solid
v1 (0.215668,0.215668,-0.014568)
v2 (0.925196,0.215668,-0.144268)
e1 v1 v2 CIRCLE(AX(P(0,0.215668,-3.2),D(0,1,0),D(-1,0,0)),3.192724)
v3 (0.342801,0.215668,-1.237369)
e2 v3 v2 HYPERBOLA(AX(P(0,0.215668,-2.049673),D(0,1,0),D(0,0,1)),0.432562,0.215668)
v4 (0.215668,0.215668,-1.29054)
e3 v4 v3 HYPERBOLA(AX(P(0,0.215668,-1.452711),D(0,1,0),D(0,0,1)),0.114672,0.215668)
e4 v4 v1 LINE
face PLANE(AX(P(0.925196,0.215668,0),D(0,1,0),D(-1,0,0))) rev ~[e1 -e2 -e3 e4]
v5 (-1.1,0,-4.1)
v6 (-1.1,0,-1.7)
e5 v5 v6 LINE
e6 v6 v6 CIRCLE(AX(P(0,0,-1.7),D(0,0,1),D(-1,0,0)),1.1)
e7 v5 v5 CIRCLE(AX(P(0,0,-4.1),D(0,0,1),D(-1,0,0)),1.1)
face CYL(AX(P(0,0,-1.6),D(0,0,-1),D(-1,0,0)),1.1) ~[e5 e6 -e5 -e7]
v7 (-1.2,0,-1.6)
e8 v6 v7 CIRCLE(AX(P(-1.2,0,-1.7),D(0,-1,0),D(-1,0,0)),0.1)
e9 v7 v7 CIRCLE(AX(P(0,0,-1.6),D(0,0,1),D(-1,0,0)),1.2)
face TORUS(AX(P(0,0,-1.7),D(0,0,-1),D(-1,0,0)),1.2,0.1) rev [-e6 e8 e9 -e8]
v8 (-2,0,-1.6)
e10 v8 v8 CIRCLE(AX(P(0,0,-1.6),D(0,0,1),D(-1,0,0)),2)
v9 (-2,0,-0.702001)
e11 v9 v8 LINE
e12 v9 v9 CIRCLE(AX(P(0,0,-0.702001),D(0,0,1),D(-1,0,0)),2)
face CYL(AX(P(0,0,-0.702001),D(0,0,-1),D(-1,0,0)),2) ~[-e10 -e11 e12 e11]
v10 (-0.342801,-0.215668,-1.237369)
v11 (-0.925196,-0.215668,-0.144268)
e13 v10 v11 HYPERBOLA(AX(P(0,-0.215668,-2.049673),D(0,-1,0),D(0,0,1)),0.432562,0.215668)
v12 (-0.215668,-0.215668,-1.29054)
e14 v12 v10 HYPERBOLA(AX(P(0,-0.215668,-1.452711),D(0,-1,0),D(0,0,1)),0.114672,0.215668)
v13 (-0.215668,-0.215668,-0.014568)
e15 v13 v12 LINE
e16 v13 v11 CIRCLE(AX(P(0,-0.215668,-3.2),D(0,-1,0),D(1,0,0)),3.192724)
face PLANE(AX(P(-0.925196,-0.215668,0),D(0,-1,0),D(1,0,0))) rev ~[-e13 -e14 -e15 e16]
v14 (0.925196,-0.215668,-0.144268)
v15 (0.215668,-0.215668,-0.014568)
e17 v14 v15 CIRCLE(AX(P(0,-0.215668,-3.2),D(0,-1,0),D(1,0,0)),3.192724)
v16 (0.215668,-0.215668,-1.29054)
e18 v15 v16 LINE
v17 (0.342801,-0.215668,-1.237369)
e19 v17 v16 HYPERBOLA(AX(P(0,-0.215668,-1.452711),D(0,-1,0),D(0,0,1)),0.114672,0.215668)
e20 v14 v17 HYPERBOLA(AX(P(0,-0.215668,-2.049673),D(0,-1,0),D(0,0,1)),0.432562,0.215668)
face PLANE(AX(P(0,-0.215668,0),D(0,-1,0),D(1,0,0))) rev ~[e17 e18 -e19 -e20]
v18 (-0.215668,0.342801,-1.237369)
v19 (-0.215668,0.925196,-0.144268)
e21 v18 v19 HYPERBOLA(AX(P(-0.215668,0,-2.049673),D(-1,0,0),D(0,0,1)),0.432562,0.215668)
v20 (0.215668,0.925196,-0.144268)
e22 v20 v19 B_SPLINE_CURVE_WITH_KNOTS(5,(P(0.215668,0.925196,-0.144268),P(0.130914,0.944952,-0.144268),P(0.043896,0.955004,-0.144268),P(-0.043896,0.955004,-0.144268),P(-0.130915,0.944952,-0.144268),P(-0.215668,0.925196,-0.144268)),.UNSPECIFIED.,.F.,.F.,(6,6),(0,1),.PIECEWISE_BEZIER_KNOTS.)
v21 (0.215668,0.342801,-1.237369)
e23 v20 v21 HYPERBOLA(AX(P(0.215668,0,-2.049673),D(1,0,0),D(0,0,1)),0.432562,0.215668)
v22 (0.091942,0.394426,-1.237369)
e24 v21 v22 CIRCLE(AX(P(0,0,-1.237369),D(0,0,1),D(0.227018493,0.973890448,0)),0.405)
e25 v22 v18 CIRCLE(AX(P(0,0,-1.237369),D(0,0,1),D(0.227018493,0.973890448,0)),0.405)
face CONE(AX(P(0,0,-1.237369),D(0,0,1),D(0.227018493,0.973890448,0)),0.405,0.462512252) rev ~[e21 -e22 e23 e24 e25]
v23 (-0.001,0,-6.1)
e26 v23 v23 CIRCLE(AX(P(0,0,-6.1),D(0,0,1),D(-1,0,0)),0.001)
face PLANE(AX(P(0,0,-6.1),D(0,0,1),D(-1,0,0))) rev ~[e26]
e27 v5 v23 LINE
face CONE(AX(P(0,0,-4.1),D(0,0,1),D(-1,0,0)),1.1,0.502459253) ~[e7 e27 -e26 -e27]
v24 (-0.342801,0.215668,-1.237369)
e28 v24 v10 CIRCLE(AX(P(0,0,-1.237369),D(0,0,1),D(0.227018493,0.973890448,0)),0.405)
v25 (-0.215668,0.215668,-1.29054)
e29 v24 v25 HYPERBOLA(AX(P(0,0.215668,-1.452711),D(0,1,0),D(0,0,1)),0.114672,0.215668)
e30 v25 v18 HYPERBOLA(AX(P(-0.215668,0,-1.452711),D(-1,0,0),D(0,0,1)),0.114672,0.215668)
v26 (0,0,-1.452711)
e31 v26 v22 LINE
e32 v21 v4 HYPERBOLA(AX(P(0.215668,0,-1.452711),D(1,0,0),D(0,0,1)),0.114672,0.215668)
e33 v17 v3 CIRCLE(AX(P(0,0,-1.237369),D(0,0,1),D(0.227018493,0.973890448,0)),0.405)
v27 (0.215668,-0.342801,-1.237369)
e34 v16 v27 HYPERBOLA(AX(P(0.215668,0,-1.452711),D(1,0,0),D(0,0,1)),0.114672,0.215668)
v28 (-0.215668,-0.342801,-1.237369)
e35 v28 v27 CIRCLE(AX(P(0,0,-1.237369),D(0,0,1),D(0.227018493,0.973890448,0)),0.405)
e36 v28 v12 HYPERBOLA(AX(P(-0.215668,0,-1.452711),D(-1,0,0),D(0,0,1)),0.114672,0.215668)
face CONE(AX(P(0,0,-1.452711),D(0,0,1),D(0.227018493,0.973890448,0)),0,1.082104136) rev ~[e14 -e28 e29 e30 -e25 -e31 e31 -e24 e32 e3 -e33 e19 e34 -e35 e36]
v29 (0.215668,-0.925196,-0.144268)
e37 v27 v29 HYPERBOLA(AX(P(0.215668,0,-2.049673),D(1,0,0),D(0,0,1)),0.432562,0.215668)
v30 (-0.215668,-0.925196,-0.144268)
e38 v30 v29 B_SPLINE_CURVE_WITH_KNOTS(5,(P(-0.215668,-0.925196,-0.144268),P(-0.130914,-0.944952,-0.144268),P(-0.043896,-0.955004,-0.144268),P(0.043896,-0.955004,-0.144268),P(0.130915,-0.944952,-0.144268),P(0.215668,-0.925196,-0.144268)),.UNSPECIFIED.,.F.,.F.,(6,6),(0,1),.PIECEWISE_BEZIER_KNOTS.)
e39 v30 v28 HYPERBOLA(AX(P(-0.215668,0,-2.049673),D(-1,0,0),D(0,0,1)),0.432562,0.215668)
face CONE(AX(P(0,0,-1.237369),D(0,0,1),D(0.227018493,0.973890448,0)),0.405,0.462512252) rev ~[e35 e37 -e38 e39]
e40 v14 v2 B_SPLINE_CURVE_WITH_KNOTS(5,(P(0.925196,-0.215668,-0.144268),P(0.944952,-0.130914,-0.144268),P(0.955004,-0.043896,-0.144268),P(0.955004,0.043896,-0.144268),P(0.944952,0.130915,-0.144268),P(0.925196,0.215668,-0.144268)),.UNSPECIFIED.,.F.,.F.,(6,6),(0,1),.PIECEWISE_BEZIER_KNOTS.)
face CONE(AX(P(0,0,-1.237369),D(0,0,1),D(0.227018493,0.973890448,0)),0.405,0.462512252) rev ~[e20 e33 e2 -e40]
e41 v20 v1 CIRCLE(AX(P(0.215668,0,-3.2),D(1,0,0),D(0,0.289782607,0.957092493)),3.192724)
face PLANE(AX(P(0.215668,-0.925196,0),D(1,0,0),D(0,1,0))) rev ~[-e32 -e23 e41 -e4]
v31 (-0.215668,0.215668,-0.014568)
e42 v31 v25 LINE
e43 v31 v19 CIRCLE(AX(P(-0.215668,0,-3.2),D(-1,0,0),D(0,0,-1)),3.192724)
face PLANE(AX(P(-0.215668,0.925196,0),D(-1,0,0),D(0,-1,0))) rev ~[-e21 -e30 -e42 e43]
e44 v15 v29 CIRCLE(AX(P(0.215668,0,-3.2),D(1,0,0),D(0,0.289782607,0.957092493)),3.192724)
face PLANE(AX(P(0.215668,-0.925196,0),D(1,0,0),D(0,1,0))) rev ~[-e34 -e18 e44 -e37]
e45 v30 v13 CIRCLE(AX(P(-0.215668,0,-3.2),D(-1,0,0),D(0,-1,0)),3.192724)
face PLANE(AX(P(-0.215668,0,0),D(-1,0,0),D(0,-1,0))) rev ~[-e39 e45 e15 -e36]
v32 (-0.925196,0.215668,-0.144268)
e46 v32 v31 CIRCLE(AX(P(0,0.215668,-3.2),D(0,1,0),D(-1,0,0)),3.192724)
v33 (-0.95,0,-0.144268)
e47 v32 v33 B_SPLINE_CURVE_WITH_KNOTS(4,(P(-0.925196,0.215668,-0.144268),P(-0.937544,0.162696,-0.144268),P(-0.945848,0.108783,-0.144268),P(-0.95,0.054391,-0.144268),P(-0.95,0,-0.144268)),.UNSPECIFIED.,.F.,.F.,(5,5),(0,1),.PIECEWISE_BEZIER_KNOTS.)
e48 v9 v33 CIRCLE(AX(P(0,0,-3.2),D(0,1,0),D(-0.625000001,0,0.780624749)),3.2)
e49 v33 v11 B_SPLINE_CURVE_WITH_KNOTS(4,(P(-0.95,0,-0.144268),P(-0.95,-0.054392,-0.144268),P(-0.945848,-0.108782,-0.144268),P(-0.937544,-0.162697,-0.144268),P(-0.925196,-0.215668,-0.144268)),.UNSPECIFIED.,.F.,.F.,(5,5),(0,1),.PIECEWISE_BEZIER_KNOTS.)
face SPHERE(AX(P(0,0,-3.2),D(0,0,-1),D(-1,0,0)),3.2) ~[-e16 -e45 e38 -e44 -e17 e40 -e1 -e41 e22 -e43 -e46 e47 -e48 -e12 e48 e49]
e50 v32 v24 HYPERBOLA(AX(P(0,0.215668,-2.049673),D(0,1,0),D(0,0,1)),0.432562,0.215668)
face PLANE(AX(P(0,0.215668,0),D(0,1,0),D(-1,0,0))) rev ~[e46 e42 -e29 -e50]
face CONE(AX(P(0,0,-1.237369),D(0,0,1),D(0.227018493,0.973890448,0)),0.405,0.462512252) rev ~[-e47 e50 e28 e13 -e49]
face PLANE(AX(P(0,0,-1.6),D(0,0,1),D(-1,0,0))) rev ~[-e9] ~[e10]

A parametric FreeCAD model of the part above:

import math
import FreeCAD as App
import Part
import Sketcher
Q = App.Units.Quantity


def edges_at(feature, points):
    """Names of the edges that pass closest to the given points."""
    edges = feature.Shape.Edges
    near = lambda p: min(range(len(edges)), key=lambda i: edges[i].distToShape(Part.Vertex(*p))[0])
    return sorted({f"Edge{near(p) + 1}" for p in points})

doc = App.newDocument("Part")
body = doc.addObject("PartDesign::Body", "Body")

sketch1 = body.newObject("Sketcher::SketchObject", "Sketch")
sketch1.AttachmentSupport = (doc.getObject("YZ_Plane"), [""])
sketch1.MapMode = "FlatFace"
sketch1.addGeometry(Part.LineSegment(App.Vector(2, -1.6, 0), App.Vector(2, -0.702001, 0)), False)
sketch1.addGeometry(Part.ArcOfCircle(Part.Circle(App.Vector(0, -3.2, 0), App.Vector(0, 0, 1), 3.2), math.radians(51.317812), math.radians(90)), False)
sketch1.addGeometry(Part.LineSegment(App.Vector(0, 0, 0), App.Vector(0, -6.1, 0)), False)
sketch1.addGeometry(Part.LineSegment(App.Vector(0, -6.1, 0), App.Vector(1.1, -6.1, 0)), False)
sketch1.addGeometry(Part.LineSegment(App.Vector(1.1, -6.1, 0), App.Vector(1.1, -1.6, 0)), False)
sketch1.addGeometry(Part.LineSegment(App.Vector(1.1, -1.6, 0), App.Vector(2, -1.6, 0)), False)
sketch1.addConstraint(Sketcher.Constraint("Coincident", 0, 2, 1, 1))
sketch1.addConstraint(Sketcher.Constraint("Coincident", 1, 2, 2, 1))
sketch1.addConstraint(Sketcher.Constraint("Coincident", 2, 2, 3, 1))
sketch1.addConstraint(Sketcher.Constraint("Coincident", 3, 2, 4, 1))
sketch1.addConstraint(Sketcher.Constraint("Coincident", 4, 2, 5, 1))
sketch1.addConstraint(Sketcher.Constraint("Coincident", 5, 2, 0, 1))
sketch1.addConstraint(Sketcher.Constraint("Vertical", 0))
sketch1.addConstraint(Sketcher.Constraint("Vertical", 2))
sketch1.addConstraint(Sketcher.Constraint("Horizontal", 3))
sketch1.addConstraint(Sketcher.Constraint("Vertical", 4))
sketch1.addConstraint(Sketcher.Constraint("Horizontal", 5))
sketch1.addConstraint(Sketcher.Constraint("Coincident", 1, 2, -1, 1))
sketch1.addConstraint(Sketcher.Constraint("PointOnObject", 1, 3, -2))
sketch1.addConstraint(Sketcher.Constraint("Radius", 1, Q("3.2 mm")))
sketch1.addConstraint(Sketcher.Constraint("DistanceX", 3, 1, 3, 2, Q("1.1 mm")))
sketch1.addConstraint(Sketcher.Constraint("DistanceX", 5, 1, 5, 2, Q("0.9 mm")))
sketch1.addConstraint(Sketcher.Constraint("DistanceY", 2, 2, 2, 1, Q("6.1 mm")))
sketch1.addConstraint(Sketcher.Constraint("DistanceY", 4, 1, 4, 2, Q("4.5 mm")))
revolution = body.newObject("PartDesign::Revolution", "Revolution")
revolution.Profile = sketch1
revolution.ReferenceAxis = (sketch1, ["V_Axis"])
revolution.Angle = 360

sketch2 = body.newObject("Sketcher::SketchObject", "Sketch001")
sketch2.AttachmentSupport = (doc.getObject("XY_Plane"), [""])
sketch2.MapMode = "FlatFace"
sketch2.addGeometry(Part.LineSegment(App.Vector(-0.215668, 0.925196, 0), App.Vector(-0.215668, 0, 0)), False)
sketch2.addGeometry(Part.LineSegment(App.Vector(-0.215668, 0, 0), App.Vector(0.215668, 0, 0)), False)
sketch2.addGeometry(Part.LineSegment(App.Vector(0.215668, 0, 0), App.Vector(0.215668, 0.925196, 0)), False)
sketch2.addGeometry(Part.ArcOfCircle(Part.Circle(App.Vector(0, 0, 0), App.Vector(0, 0, 1), 0.95), math.radians(76.878399), math.radians(103.121601)), False)
sketch2.addConstraint(Sketcher.Constraint("Coincident", 0, 2, 1, 1))
sketch2.addConstraint(Sketcher.Constraint("Coincident", 1, 2, 2, 1))
sketch2.addConstraint(Sketcher.Constraint("Coincident", 2, 2, 3, 1))
sketch2.addConstraint(Sketcher.Constraint("Coincident", 3, 2, 0, 1))
sketch2.addConstraint(Sketcher.Constraint("Vertical", 0))
sketch2.addConstraint(Sketcher.Constraint("Horizontal", 1))
sketch2.addConstraint(Sketcher.Constraint("Vertical", 2))
sketch2.addConstraint(Sketcher.Constraint("Coincident", 3, 3, -1, 1))
sketch2.addConstraint(Sketcher.Constraint("Symmetric", 0, 2, 1, 2, -1, 1))
sketch2.addConstraint(Sketcher.Constraint("Radius", 3, Q("0.95 mm")))
sketch2.addConstraint(Sketcher.Constraint("DistanceX", 1, 1, 1, 2, Q("0.431335 mm")))
pocket1 = body.newObject("PartDesign::Pocket", "Pocket")
pocket1.Profile = sketch2
pocket1.Length = 1.9
doc.recompute()

polarpattern = body.newObject("PartDesign::PolarPattern", "PolarPattern")
polarpattern.Originals = [pocket1]
polarpattern.Axis = (doc.getObject("Z_Axis"), [""])
polarpattern.Angle = 360
polarpattern.Occurrences = 4
body.Tip = polarpattern

sketch3 = body.newObject("Sketcher::SketchObject", "Sketch002")
sketch3.AttachmentSupport = (doc.getObject("YZ_Plane"), [""])
sketch3.MapMode = "FlatFace"
sketch3.addGeometry(Part.LineSegment(App.Vector(1.9, -1.6, 0), App.Vector(1.9, -0.625121, 0)), False)
sketch3.addGeometry(Part.ArcOfCircle(Part.Circle(App.Vector(0, -3.2, 0), App.Vector(0, 0, 1), 3.2), math.radians(53.576426), math.radians(72.729995)), False)
sketch3.addGeometry(Part.LineSegment(App.Vector(0.95, -0.144268, 0), App.Vector(0.405, -1.237369, 0)), False)
sketch3.addGeometry(Part.LineSegment(App.Vector(0.405, -1.237369, 0), App.Vector(0, -1.452711, 0)), False)
sketch3.addGeometry(Part.LineSegment(App.Vector(0, -1.452711, 0), App.Vector(0, -1.91, 0)), False)
sketch3.addGeometry(Part.LineSegment(App.Vector(0, -1.91, 0), App.Vector(1.1, -1.91, 0)), False)
sketch3.addGeometry(Part.LineSegment(App.Vector(1.1, -1.91, 0), App.Vector(1.1, -1.6, 0)), False)
sketch3.addGeometry(Part.LineSegment(App.Vector(1.1, -1.6, 0), App.Vector(1.9, -1.6, 0)), False)
sketch3.addConstraint(Sketcher.Constraint("Coincident", 0, 2, 1, 1))
sketch3.addConstraint(Sketcher.Constraint("Coincident", 1, 2, 2, 1))
sketch3.addConstraint(Sketcher.Constraint("Coincident", 2, 2, 3, 1))
sketch3.addConstraint(Sketcher.Constraint("Coincident", 3, 2, 4, 1))
sketch3.addConstraint(Sketcher.Constraint("Coincident", 4, 2, 5, 1))
sketch3.addConstraint(Sketcher.Constraint("Coincident", 5, 2, 6, 1))
sketch3.addConstraint(Sketcher.Constraint("Coincident", 6, 2, 7, 1))
sketch3.addConstraint(Sketcher.Constraint("Coincident", 7, 2, 0, 1))
sketch3.addConstraint(Sketcher.Constraint("Vertical", 0))
sketch3.addConstraint(Sketcher.Constraint("Vertical", 4))
sketch3.addConstraint(Sketcher.Constraint("Horizontal", 5))
sketch3.addConstraint(Sketcher.Constraint("Vertical", 6))
sketch3.addConstraint(Sketcher.Constraint("Horizontal", 7))
sketch3.addConstraint(Sketcher.Constraint("PointOnObject", 1, 3, -2))
sketch3.addConstraint(Sketcher.Constraint("PointOnObject", 3, 2, -2))
sketch3.addConstraint(Sketcher.Constraint("Radius", 1, Q("3.2 mm")))
sketch3.addConstraint(Sketcher.Constraint("Angle", 3, Q("-152 deg")))
sketch3.addConstraint(Sketcher.Constraint("DistanceX", 5, 1, 5, 2, Q("1.1 mm")))
sketch3.addConstraint(Sketcher.Constraint("DistanceX", 7, 1, 7, 2, Q("0.8 mm")))
sketch3.addConstraint(Sketcher.Constraint("Angle", 2, Q("-116.5 deg")))
sketch3.addConstraint(Sketcher.Constraint("DistanceY", 6, 1, 6, 2, Q("0.31 mm")))
sketch3.addConstraint(Sketcher.Constraint("DistanceY", 1, 3, -1, 1, Q("3.2 mm")))
sketch3.addConstraint(Sketcher.Constraint("DistanceY", 6, 2, -1, 1, Q("1.6 mm")))
sketch3.addConstraint(Sketcher.Constraint("DistanceX", -1, 1, 1, 2, Q("0.95 mm")))
sketch3.addConstraint(Sketcher.Constraint("DistanceX", -1, 1, 2, 2, Q("0.405 mm")))
revolution2 = body.newObject("PartDesign::Revolution", "Revolution001")
revolution2.Profile = sketch3
revolution2.ReferenceAxis = (sketch3, ["V_Axis"])
revolution2.Angle = 360
doc.recompute()

chamfer = body.newObject("PartDesign::Chamfer", "Chamfer")
chamfer.Base = (revolution2, edges_at(revolution2, [(1.1, 0, -6.1)]))
chamfer.ChamferType = "Two distances"
chamfer.Size = 2
chamfer.Size2 = 1.099
doc.recompute()

fillet = body.newObject("PartDesign::Fillet", "Fillet")
fillet.Base = (chamfer, edges_at(chamfer, [(1.1, 0, -1.6)]))
fillet.Radius = 0.1

doc.recompute()
